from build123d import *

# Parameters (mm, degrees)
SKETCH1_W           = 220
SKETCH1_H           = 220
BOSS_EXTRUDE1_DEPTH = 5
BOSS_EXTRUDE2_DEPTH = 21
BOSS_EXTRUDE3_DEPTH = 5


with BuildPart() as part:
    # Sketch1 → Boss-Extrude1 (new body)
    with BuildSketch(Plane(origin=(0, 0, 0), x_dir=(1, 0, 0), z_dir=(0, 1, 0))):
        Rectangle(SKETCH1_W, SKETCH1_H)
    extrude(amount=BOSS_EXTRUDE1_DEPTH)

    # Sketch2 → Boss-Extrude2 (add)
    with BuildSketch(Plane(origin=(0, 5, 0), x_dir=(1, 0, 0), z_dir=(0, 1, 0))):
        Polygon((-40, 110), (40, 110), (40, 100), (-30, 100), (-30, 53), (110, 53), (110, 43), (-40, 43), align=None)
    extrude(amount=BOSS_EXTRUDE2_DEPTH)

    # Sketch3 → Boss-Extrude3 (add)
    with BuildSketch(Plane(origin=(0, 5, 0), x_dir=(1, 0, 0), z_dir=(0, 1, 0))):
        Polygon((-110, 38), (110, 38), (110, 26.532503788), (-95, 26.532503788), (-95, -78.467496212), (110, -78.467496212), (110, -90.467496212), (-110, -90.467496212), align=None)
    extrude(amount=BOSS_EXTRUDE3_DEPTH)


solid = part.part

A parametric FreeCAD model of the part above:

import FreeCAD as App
import Part
import Sketcher

doc = App.newDocument("Part")
params = doc.addObject("Spreadsheet::Sheet", "Params")
for row, (alias, value) in enumerate([
    ("sketch1_width", "220 mm"),
    ("pad1_length", "5 mm"),
    ("sketch2_width", "80 mm"),
    ("sketch2_width2", "150 mm"),
    ("sketch2_width3", "140 mm"),
    ("sketch2_height", "67 mm"),
    ("sketch2_height2", "10 mm"),
    ("pad2_length", "21 mm"),
    ("sketch3_width", "220 mm"),
    ("sketch3_width2", "205 mm"),
    ("sketch3_height", "12 mm"),
    ("sketch3_height2", "105 mm"),
    ("pad3_length", "5 mm"),
], start=1):
    params.set(f"A{row}", alias)
    params.set(f"B{row}", "=" + value)
    params.setAlias(f"B{row}", alias)

body = doc.addObject("PartDesign::Body", "Body")

# Sketch on XZ plane
sketch1 = body.newObject("Sketcher::SketchObject", "Sketch")
sketch1.AttachmentSupport = (doc.getObject("XZ_Plane"), [""])
sketch1.MapMode = "FlatFace"
sketch1.addGeometry([
    Part.LineSegment(App.Vector(-110, -110, 0), App.Vector(-110, 110, 0)),
    Part.LineSegment(App.Vector(-110, 110, 0), App.Vector(110, 110, 0)),
    Part.LineSegment(App.Vector(110, 110, 0), App.Vector(110, -110, 0)),
    Part.LineSegment(App.Vector(110, -110, 0), App.Vector(-110, -110, 0)),
], False)
sketch1.addConstraint([
    Sketcher.Constraint("Coincident", 0, 2, 1, 1),
    Sketcher.Constraint("Coincident", 1, 2, 2, 1),
    Sketcher.Constraint("Coincident", 2, 2, 3, 1),
    Sketcher.Constraint("Coincident", 3, 2, 0, 1),
    Sketcher.Constraint("Vertical", 0),
    Sketcher.Constraint("Horizontal", 1),
    Sketcher.Constraint("Vertical", 2),
    Sketcher.Constraint("Horizontal", 3),
    Sketcher.Constraint("Symmetric", 0, 2, 2, 2, -1, 1),
    Sketcher.Constraint("Equal", 3, 0),
    Sketcher.Constraint("DistanceX", 1, 1, 1, 2, 220.0),
])
sketch1.setExpression("Constraints[10]", "Params.sketch1_width")
pad1 = body.newObject("PartDesign::Pad", "Pad")
pad1.Profile = sketch1
pad1.setExpression("Length", "Params.pad1_length")
pad1.Reversed = True

# Sketch on XZ plane
sketch2 = body.newObject("Sketcher::SketchObject", "Sketch001")
sketch2.AttachmentSupport = (doc.getObject("XZ_Plane"), [""])
sketch2.MapMode = "FlatFace"
sketch2.AttachmentOffset = App.Placement(App.Vector(0, 0, -5), App.Rotation())
sketch2.addGeometry([
    Part.LineSegment(App.Vector(40, -110, 0), App.Vector(-40, -110, 0)),  # 0
    Part.LineSegment(App.Vector(-40, -110, 0), App.Vector(-40, -43, 0)),  # 1
    Part.LineSegment(App.Vector(-40, -43, 0), App.Vector(110, -43, 0)),  # 2
    Part.LineSegment(App.Vector(110, -43, 0), App.Vector(110, -53, 0)),  # 3
    Part.LineSegment(App.Vector(110, -53, 0), App.Vector(-30, -53, 0)),  # 4
    Part.LineSegment(App.Vector(-30, -53, 0), App.Vector(-30, -100, 0)),  # 5
    Part.LineSegment(App.Vector(-30, -100, 0), App.Vector(40, -100, 0)),  # 6
    Part.LineSegment(App.Vector(40, -100, 0), App.Vector(40, -110, 0)),  # 7
], False)
sketch2.addConstraint([
    Sketcher.Constraint("Coincident", 0, 2, 1, 1),
    Sketcher.Constraint("Coincident", 1, 2, 2, 1),
    Sketcher.Constraint("Coincident", 2, 2, 3, 1),
    Sketcher.Constraint("Coincident", 3, 2, 4, 1),
    Sketcher.Constraint("Coincident", 4, 2, 5, 1),
    Sketcher.Constraint("Coincident", 5, 2, 6, 1),
    Sketcher.Constraint("Coincident", 6, 2, 7, 1),
    Sketcher.Constraint("Coincident", 7, 2, 0, 1),
    Sketcher.Constraint("Horizontal", 0),
    Sketcher.Constraint("Vertical", 1),
    Sketcher.Constraint("Horizontal", 2),
    Sketcher.Constraint("Vertical", 3),
    Sketcher.Constraint("Horizontal", 4),
    Sketcher.Constraint("Vertical", 5),
    Sketcher.Constraint("Horizontal", 6),
    Sketcher.Constraint("Vertical", 7),
    Sketcher.Constraint("Equal", 3, 7),
    Sketcher.Constraint("DistanceX", 0, 2, 0, 1, 80.0),
    Sketcher.Constraint("DistanceX", 2, 1, 2, 2, 150.0),
    Sketcher.Constraint("DistanceX", 4, 2, 4, 1, 140.0),
    Sketcher.Constraint("DistanceY", 1, 1, 1, 2, 67.0),
    Sketcher.Constraint("DistanceY", 3, 2, 3, 1, 10.0),
    Sketcher.Constraint("DistanceX", 0, 2, -1, 1, 40.0),
    Sketcher.Constraint("DistanceY", 0, 2, -1, 1, 110.0),
])
sketch2.setExpression("Constraints[17]", "Params.sketch2_width")
sketch2.setExpression("Constraints[18]", "Params.sketch2_width2")
sketch2.setExpression("Constraints[19]", "Params.sketch2_width3")
sketch2.setExpression("Constraints[20]", "Params.sketch2_height")
sketch2.setExpression("Constraints[21]", "Params.sketch2_height2")
pad2 = body.newObject("PartDesign::Pad", "Pad001")
pad2.Profile = sketch2
pad2.setExpression("Length", "Params.pad2_length")
pad2.Reversed = True

# Sketch on XZ plane
sketch3 = body.newObject("Sketcher::SketchObject", "Sketch002")
sketch3.AttachmentSupport = (doc.getObject("XZ_Plane"), [""])
sketch3.MapMode = "FlatFace"
sketch3.AttachmentOffset = App.Placement(App.Vector(0, 0, -5), App.Rotation())
sketch3.addGeometry([
    Part.LineSegment(App.Vector(110, -38, 0), App.Vector(-110, -38, 0)),  # 0
    Part.LineSegment(App.Vector(-110, -38, 0), App.Vector(-110, 90, 0)),  # 1
    Part.LineSegment(App.Vector(-110, 90, 0), App.Vector(110, 90, 0)),  # 2
    Part.LineSegment(App.Vector(110, 90, 0), App.Vector(110, 78, 0)),  # 3
    Part.LineSegment(App.Vector(110, 78, 0), App.Vector(-95, 78, 0)),  # 4
    Part.LineSegment(App.Vector(-95, 78, 0), App.Vector(-95, -27, 0)),  # 5
    Part.LineSegment(App.Vector(-95, -27, 0), App.Vector(110, -27, 0)),  # 6
    Part.LineSegment(App.Vector(110, -27, 0), App.Vector(110, -38, 0)),  # 7
], False)
sketch3.addConstraint([
    Sketcher.Constraint("Coincident", 0, 2, 1, 1),
    Sketcher.Constraint("Coincident", 1, 2, 2, 1),
    Sketcher.Constraint("Coincident", 2, 2, 3, 1),
    Sketcher.Constraint("Coincident", 3, 2, 4, 1),
    Sketcher.Constraint("Coincident", 4, 2, 5, 1),
    Sketcher.Constraint("Coincident", 5, 2, 6, 1),
    Sketcher.Constraint("Coincident", 6, 2, 7, 1),
    Sketcher.Constraint("Coincident", 7, 2, 0, 1),
    Sketcher.Constraint("Horizontal", 0),
    Sketcher.Constraint("Vertical", 1),
    Sketcher.Constraint("Horizontal", 2),
    Sketcher.Constraint("Vertical", 3),
    Sketcher.Constraint("Horizontal", 4),
    Sketcher.Constraint("Vertical", 5),
    Sketcher.Constraint("Horizontal", 6),
    Sketcher.Constraint("Vertical", 7),
    Sketcher.Constraint("Vertical", 3, 2, 6, 2),
    Sketcher.Constraint("DistanceX", 0, 2, 0, 1, 220.0),
    Sketcher.Constraint("DistanceX", 4, 2, 4, 1, 205.0),
    Sketcher.Constraint("DistanceY", 3, 2, 3, 1, 12.0),
    Sketcher.Constraint("DistanceY", 5, 2, 5, 1, 105.0),
    Sketcher.Constraint("DistanceX", 0, 2, -1, 1, 110.0),
    Sketcher.Constraint("DistanceY", 0, 2, -1, 1, 38.0),
    Sketcher.Constraint("DistanceY", 1, 1, 1, 2, 128.467496),
])
sketch3.setExpression("Constraints[17]", "Params.sketch3_width")
sketch3.setExpression("Constraints[18]", "Params.sketch3_width2")
sketch3.setExpression("Constraints[19]", "Params.sketch3_height")
sketch3.setExpression("Constraints[20]", "Params.sketch3_height2")
pad3 = body.newObject("PartDesign::Pad", "Pad002")
pad3.Profile = sketch3
pad3.setExpression("Length", "Params.pad3_length")
pad3.Reversed = True

doc.recompute()
